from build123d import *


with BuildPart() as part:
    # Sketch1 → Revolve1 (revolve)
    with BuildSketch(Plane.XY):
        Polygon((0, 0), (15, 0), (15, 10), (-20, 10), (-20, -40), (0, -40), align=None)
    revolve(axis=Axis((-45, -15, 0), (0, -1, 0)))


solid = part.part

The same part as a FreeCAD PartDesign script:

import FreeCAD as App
import Part
import Sketcher

V = App.Vector

doc = App.newDocument("Part")
body = doc.addObject("PartDesign::Body", "Body")

# Sketch on XY plane
sketch1 = body.newObject("Sketcher::SketchObject", "Sketch")
sketch1.AttachmentSupport = (doc.getObject("XY_Plane"), [""])
sketch1.MapMode = "FlatFace"
sketch1.addGeometry(Part.LineSegment(V(0, 0, 0), V(15, 0, 0)), False)
sketch1.addGeometry(Part.LineSegment(V(15, 0, 0), V(15, 10, 0)), False)
sketch1.addGeometry(Part.LineSegment(V(15, 10, 0), V(-20, 10, 0)), False)
sketch1.addGeometry(Part.LineSegment(V(-20, 10, 0), V(-20, -40, 0)), False)
sketch1.addGeometry(Part.LineSegment(V(-20, -40, 0), V(0, -40, 0)), False)
sketch1.addGeometry(Part.LineSegment(V(0, -40, 0), V(0, 0, 0)), False)
sketch1.addGeometry(Part.LineSegment(V(-45, 10, 0), V(-45, -40, 0)), True)  # axis
sketch1.addConstraint(Sketcher.Constraint("Coincident", 0, 2, 1, 1))
sketch1.addConstraint(Sketcher.Constraint("Coincident", 1, 2, 2, 1))
sketch1.addConstraint(Sketcher.Constraint("Coincident", 2, 2, 3, 1))
sketch1.addConstraint(Sketcher.Constraint("Coincident", 3, 2, 4, 1))
sketch1.addConstraint(Sketcher.Constraint("Coincident", 4, 2, 5, 1))
sketch1.addConstraint(Sketcher.Constraint("Coincident", 5, 2, 0, 1))
sketch1.addConstraint(Sketcher.Constraint("Horizontal", 0))
sketch1.addConstraint(Sketcher.Constraint("Vertical", 1))
sketch1.addConstraint(Sketcher.Constraint("Horizontal", 2))
sketch1.addConstraint(Sketcher.Constraint("Vertical", 3))
sketch1.addConstraint(Sketcher.Constraint("Horizontal", 4))
sketch1.addConstraint(Sketcher.Constraint("Vertical", 5))
sketch1.addConstraint(Sketcher.Constraint("Vertical", 6))
sketch1.addConstraint(Sketcher.Constraint("Coincident", 5, 2, -1, 1))
sketch1.addConstraint(Sketcher.Constraint("Horizontal", 2, 2, 6, 1))
sketch1.addConstraint(Sketcher.Constraint("Horizontal", 4, 2, 6, 2))
sketch1.addConstraint(Sketcher.Constraint("DistanceX", 0, 1, 0, 2, 15.0))
sketch1.addConstraint(Sketcher.Constraint("DistanceX", 2, 2, 2, 1, 35.0))
sketch1.addConstraint(Sketcher.Constraint("DistanceY", 1, 1, 1, 2, 10.0))
sketch1.addConstraint(Sketcher.Constraint("DistanceY", 3, 2, 3, 1, 50.0))
sketch1.addConstraint(Sketcher.Constraint("DistanceX", 6, 1, -1, 1, 45.0))
revolution = body.newObject("PartDesign::Revolution", "Revolution")
revolution.Profile = sketch1
revolution.ReferenceAxis = (sketch1, ["Axis0"])
revolution.Angle = 360

doc.recompute()
